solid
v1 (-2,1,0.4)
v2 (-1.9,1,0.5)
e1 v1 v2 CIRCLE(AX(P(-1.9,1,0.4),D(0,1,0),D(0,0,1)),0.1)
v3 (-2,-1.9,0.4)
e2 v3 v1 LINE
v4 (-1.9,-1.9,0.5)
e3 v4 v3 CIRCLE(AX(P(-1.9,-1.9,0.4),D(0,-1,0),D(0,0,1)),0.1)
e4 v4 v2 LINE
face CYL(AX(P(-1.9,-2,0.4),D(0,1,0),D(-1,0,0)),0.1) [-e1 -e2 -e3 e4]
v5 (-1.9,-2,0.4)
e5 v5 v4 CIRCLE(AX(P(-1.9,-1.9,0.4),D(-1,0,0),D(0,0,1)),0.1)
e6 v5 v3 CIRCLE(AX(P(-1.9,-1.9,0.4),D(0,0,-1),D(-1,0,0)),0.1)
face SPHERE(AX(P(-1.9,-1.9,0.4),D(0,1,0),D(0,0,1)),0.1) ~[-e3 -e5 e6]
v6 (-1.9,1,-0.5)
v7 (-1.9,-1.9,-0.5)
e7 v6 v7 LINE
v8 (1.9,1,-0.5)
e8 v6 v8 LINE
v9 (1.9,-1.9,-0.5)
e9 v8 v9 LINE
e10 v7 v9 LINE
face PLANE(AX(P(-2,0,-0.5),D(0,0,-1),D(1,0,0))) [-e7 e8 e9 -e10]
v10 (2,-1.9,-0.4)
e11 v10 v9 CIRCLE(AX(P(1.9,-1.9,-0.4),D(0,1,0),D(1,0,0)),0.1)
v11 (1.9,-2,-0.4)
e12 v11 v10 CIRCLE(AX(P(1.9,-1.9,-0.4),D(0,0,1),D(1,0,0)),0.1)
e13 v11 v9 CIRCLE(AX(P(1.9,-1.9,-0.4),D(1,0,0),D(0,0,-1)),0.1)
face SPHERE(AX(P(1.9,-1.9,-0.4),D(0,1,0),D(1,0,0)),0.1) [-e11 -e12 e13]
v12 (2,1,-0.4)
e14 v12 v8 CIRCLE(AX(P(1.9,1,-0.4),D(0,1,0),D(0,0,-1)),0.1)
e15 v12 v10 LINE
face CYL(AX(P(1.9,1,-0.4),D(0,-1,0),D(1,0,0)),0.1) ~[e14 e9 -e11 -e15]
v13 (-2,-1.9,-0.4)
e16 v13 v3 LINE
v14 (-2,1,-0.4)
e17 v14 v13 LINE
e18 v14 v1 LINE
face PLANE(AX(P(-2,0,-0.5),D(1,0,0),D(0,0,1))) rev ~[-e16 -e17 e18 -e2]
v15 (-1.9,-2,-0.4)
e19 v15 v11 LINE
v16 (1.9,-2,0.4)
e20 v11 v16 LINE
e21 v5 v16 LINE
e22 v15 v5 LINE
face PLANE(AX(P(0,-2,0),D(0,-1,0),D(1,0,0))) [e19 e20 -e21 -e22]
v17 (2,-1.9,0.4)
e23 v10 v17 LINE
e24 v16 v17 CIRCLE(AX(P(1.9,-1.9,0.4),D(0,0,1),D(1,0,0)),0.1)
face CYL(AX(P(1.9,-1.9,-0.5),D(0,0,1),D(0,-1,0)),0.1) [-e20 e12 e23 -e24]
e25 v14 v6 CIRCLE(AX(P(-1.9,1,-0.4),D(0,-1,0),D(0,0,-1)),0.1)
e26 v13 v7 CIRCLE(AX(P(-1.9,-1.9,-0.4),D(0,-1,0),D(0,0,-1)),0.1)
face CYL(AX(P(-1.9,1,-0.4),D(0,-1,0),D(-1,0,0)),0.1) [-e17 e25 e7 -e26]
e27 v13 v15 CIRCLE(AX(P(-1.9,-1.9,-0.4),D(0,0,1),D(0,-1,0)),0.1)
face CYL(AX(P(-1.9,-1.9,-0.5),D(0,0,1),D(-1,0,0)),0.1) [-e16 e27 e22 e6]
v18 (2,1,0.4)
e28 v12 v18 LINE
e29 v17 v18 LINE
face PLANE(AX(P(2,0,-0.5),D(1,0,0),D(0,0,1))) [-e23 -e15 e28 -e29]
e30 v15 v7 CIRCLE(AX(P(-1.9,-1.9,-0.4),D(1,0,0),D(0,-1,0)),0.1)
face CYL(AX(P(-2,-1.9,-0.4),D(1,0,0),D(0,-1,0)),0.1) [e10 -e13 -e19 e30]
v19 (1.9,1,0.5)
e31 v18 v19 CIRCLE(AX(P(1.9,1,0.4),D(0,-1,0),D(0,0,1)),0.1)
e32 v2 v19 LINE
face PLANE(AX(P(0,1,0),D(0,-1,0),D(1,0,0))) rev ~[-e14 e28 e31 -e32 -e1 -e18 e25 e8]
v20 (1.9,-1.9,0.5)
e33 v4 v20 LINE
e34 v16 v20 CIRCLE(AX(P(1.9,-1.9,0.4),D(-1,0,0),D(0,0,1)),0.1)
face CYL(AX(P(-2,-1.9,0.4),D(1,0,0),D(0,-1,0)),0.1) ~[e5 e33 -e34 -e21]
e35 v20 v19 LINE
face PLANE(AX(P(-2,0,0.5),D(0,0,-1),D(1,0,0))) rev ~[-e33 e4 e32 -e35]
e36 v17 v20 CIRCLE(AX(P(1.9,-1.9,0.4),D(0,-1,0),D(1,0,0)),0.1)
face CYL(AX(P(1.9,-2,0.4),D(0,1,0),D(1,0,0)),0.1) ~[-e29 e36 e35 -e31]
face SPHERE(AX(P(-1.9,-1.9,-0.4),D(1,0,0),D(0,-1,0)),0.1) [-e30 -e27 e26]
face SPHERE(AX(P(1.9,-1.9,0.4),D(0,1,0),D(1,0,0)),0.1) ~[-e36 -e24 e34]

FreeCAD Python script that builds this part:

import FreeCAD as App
import Part
import Sketcher

V = App.Vector
Q = App.Units.Quantity


def edges_at(feature, points):
    """Names of the edges that pass closest to the given points."""
    edges = feature.Shape.Edges
    near = lambda p: min(range(len(edges)), key=lambda i: edges[i].distToShape(Part.Vertex(*p))[0])
    return sorted({f"Edge{near(p) + 1}" for p in points})


def add_polygon(sketch, points):
    """Adds a closed chain of lines whose ends are joined by coincident constraints."""
    first, n = sketch.GeometryCount, len(points)
    for a, b in zip(points, points[1:] + points[:1]):
        sketch.addGeometry(Part.LineSegment(App.Vector(*a, 0), App.Vector(*b, 0)), False)
    for i in range(n):
        sketch.addConstraint(Sketcher.Constraint("Coincident", first + i, 2, first + (i + 1) % n, 1))

doc = App.newDocument("Part")
body = doc.addObject("PartDesign::Body", "Body")

# Sketch on XZ plane
sketch1 = body.newObject("Sketcher::SketchObject", "Sketch")
sketch1.AttachmentSupport = (doc.getObject("XZ_Plane"), [""])
sketch1.MapMode = "FlatFace"
add_polygon(sketch1, [(-2, 0.5), (-2, -0.5), (2, -0.5), (2, 0.5)])  # lines 0-3
sketch1.addConstraint([
    Sketcher.Constraint("Vertical", 0),
    Sketcher.Constraint("Horizontal", 1),
    Sketcher.Constraint("Vertical", 2),
    Sketcher.Constraint("Horizontal", 3),
    Sketcher.Constraint("Symmetric", 0, 2, 2, 2, -1, 1),
    Sketcher.Constraint("DistanceX", 1, 1, 1, 2, Q("4 mm")),
    Sketcher.Constraint("DistanceY", 0, 2, 0, 1, Q("1 mm")),
])
pad1 = body.newObject("PartDesign::Pad", "Pad")
pad1.Profile = sketch1
pad1.Type = "TwoLengths"
pad1.Length = 2
pad1.Length2 = 1
doc.recompute()

fillet = body.newObject("PartDesign::Fillet", "Fillet")
fillet.Base = (pad1, edges_at(pad1, [
    (-2, -0.5, 0.5),
    (2, -0.5, 0.5),
    (2, -0.5, -0.5),
    (2, -2, 0),
    (0, -2, 0.5),
    (0, -2, -0.5),
    (-2, -2, 0),
    (-2, -0.5, -0.5),
]))
fillet.Radius = 0.1

doc.recompute()
